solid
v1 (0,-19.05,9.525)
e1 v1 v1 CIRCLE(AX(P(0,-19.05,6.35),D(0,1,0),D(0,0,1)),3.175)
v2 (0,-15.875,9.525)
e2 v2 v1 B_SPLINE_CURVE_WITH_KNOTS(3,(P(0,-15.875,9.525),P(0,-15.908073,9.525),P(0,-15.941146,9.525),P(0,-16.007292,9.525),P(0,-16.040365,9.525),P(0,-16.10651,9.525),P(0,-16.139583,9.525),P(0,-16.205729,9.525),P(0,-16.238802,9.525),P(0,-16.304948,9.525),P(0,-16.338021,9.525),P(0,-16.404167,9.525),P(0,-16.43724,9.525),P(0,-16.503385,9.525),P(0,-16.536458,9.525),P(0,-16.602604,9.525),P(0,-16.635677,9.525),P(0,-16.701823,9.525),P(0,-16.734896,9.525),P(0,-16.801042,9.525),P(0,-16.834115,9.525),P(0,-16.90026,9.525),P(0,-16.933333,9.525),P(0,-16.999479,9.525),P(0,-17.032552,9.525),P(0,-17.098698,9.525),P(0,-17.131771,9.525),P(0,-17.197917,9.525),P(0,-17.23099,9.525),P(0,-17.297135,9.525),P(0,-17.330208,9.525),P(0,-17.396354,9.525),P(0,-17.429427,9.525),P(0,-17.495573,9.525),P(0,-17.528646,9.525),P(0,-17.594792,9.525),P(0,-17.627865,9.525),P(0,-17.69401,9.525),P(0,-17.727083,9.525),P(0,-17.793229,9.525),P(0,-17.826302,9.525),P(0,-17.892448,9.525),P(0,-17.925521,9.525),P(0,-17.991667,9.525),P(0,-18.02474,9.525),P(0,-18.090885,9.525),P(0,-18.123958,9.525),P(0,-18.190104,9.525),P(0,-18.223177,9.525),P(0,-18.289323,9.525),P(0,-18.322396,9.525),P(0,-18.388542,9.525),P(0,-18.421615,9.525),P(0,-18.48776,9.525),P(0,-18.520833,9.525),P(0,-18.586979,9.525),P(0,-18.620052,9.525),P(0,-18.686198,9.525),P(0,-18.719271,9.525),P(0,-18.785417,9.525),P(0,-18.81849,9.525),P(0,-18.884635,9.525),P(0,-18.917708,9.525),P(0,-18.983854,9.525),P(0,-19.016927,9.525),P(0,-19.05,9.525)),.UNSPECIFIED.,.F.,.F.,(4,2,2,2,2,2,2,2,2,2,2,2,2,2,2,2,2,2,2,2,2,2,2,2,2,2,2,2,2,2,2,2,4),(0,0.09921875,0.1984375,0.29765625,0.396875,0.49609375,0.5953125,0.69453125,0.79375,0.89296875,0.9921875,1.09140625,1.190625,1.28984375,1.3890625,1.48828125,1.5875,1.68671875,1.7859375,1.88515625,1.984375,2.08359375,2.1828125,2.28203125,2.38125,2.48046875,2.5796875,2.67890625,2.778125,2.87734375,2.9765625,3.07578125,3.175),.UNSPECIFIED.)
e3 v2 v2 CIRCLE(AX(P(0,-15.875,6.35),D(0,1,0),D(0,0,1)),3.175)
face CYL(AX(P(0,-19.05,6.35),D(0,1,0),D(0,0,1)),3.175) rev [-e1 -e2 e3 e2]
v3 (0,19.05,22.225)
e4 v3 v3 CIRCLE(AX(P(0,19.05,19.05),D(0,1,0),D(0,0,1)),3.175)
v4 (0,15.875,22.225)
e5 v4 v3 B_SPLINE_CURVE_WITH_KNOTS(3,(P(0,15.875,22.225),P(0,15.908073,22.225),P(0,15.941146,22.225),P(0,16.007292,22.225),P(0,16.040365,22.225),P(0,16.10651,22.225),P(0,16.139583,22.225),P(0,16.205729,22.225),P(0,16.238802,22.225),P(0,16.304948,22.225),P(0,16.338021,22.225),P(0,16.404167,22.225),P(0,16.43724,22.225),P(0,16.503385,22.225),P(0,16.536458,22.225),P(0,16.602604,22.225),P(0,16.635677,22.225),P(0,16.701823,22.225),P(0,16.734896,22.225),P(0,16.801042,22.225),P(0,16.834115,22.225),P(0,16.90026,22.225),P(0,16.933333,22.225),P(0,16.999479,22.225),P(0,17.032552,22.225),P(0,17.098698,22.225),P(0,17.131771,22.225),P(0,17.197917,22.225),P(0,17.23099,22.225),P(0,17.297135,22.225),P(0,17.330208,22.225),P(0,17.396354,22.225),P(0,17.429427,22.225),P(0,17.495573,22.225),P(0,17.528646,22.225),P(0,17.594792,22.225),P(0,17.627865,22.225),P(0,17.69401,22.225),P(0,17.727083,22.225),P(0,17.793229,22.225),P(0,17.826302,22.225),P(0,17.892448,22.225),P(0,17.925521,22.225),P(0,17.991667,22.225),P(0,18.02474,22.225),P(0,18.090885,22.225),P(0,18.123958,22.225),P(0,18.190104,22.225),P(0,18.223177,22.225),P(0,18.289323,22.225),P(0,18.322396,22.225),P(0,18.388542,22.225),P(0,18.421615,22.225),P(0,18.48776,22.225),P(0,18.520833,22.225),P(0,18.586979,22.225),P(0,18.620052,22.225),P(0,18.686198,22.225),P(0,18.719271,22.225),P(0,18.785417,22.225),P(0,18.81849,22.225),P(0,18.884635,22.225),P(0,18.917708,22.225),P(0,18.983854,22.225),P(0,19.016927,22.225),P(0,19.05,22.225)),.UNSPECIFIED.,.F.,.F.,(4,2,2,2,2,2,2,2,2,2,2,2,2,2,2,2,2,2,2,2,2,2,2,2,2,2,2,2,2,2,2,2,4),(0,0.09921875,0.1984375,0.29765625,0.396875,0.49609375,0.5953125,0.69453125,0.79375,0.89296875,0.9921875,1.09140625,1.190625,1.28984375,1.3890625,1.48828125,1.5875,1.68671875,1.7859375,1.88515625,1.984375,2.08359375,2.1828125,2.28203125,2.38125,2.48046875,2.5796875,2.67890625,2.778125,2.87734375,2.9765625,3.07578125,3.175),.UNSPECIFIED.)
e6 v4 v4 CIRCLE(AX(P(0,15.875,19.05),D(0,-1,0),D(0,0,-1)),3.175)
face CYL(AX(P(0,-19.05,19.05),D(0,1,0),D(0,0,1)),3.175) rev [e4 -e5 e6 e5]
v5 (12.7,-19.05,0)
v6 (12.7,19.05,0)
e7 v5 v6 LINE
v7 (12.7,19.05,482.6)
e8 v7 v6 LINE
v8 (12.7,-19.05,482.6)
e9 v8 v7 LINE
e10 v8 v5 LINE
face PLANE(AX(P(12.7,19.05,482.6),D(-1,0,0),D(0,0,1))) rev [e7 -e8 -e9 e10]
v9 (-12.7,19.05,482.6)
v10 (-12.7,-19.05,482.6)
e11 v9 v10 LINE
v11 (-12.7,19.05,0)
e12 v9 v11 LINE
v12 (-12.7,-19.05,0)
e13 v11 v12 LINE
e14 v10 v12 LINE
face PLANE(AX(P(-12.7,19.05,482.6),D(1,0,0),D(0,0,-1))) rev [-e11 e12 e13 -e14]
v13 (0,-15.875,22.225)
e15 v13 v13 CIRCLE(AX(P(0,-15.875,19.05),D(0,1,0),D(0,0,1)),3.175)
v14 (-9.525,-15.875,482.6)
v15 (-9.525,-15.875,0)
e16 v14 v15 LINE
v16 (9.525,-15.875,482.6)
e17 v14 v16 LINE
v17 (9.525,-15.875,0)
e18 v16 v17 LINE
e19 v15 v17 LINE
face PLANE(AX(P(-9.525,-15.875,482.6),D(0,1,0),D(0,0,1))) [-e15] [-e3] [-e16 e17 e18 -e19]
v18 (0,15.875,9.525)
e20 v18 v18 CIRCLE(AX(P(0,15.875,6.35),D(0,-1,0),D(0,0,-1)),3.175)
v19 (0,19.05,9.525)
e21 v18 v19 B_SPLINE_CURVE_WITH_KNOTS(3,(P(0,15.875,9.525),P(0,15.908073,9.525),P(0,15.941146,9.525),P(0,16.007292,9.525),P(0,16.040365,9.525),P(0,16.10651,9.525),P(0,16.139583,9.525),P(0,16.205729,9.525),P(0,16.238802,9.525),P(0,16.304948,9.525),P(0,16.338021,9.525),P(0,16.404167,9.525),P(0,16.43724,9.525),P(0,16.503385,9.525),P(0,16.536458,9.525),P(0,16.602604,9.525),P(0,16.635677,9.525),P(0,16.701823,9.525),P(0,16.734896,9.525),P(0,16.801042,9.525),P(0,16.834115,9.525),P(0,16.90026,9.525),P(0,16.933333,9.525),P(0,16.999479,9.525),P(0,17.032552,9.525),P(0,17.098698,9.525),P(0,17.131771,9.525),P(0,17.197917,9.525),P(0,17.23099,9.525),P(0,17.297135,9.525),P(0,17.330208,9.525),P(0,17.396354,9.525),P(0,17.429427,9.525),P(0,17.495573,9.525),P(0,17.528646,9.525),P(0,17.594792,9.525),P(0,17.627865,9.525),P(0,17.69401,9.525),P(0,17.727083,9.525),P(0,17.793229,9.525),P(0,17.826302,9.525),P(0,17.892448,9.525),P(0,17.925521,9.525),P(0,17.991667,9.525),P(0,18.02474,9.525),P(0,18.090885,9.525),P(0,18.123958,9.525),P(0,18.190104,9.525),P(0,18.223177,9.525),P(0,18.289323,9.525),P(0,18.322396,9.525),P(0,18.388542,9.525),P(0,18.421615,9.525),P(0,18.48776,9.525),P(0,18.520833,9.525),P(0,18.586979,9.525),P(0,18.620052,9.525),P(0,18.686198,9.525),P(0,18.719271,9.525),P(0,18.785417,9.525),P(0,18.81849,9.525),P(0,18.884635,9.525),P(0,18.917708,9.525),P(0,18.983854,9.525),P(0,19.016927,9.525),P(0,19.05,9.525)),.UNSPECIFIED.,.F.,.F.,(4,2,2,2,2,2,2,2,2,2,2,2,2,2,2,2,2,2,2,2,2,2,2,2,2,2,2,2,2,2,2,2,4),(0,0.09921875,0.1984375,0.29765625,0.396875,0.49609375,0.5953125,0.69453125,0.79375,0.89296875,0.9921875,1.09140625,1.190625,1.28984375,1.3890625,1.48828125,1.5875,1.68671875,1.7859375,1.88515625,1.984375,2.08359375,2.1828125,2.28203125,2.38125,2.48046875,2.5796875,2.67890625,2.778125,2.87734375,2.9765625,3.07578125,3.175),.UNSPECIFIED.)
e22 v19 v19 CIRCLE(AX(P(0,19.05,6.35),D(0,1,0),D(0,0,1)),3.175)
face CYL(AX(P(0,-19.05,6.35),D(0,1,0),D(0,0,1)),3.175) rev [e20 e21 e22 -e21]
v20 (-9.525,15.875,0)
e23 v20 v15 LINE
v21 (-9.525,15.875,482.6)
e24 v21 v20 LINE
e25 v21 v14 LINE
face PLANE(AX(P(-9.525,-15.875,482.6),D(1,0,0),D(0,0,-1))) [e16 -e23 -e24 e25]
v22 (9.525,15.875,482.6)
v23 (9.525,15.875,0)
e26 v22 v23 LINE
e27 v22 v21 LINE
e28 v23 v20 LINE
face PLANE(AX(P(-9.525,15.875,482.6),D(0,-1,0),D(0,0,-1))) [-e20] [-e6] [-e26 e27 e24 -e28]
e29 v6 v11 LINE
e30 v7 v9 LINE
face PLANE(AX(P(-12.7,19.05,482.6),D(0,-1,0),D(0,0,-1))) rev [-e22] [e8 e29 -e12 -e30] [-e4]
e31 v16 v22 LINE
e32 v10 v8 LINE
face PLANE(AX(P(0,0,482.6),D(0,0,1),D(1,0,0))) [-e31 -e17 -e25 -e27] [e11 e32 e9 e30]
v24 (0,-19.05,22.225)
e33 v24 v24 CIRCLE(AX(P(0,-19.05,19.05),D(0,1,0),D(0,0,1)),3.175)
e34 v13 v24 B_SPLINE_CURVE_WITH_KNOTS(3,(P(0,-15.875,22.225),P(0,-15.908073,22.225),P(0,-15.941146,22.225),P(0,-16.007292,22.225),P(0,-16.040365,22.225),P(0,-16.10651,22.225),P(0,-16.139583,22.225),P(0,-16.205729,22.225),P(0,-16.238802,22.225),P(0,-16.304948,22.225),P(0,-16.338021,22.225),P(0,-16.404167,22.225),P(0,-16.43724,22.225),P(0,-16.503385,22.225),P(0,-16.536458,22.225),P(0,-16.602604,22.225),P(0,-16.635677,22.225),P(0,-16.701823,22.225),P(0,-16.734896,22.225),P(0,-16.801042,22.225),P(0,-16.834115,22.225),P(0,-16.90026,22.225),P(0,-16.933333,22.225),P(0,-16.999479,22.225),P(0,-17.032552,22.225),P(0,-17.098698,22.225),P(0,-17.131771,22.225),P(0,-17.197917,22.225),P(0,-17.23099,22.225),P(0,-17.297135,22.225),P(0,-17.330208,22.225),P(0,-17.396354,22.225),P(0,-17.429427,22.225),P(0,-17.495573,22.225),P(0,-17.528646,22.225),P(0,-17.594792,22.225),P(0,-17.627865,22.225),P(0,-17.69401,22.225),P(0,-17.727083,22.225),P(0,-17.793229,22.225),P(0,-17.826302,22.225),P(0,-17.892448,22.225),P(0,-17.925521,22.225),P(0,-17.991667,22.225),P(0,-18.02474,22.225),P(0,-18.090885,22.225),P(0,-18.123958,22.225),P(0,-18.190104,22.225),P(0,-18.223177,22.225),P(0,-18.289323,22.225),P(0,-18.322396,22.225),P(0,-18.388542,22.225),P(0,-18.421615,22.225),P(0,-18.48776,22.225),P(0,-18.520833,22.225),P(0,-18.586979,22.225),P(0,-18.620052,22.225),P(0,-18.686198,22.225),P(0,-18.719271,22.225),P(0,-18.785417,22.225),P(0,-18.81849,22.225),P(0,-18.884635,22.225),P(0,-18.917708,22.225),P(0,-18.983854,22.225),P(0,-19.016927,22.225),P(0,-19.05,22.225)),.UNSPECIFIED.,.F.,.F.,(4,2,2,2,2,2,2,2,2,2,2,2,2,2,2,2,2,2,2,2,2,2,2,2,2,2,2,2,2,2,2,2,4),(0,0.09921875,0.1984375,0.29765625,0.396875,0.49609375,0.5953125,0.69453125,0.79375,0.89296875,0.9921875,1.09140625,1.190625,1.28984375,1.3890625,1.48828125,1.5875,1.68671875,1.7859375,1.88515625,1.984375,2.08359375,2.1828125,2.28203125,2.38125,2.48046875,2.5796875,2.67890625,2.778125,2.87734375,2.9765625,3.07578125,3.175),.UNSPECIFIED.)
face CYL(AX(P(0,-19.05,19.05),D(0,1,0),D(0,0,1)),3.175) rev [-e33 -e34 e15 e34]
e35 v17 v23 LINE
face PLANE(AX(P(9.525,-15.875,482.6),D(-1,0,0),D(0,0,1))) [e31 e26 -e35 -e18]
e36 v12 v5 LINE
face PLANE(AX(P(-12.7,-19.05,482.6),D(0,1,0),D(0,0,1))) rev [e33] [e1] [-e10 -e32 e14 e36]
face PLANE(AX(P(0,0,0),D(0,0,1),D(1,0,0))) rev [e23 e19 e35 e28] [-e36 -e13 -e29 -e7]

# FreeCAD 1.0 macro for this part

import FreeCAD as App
import Part
import Sketcher
Q = App.Units.Quantity

doc = App.newDocument("Part")
body = doc.addObject("PartDesign::Body", "Body")

sketch1 = body.newObject("Sketcher::SketchObject", "Sketch")
sketch1.AttachmentSupport = (doc.getObject("XY_Plane"), [""])
sketch1.MapMode = "FlatFace"
sketch1.addGeometry([
    Part.LineSegment(App.Vector(-13, 19, 0), App.Vector(-13, -19, 0)),
    Part.LineSegment(App.Vector(-13, -19, 0), App.Vector(13, -19, 0)),
    Part.LineSegment(App.Vector(13, -19, 0), App.Vector(13, 19, 0)),
    Part.LineSegment(App.Vector(13, 19, 0), App.Vector(-13, 19, 0)),
    Part.LineSegment(App.Vector(10, -16, 0), App.Vector(-10, -16, 0)),
    Part.LineSegment(App.Vector(-10, -16, 0), App.Vector(-10, 16, 0)),
    Part.LineSegment(App.Vector(-10, 16, 0), App.Vector(10, 16, 0)),
    Part.LineSegment(App.Vector(10, 16, 0), App.Vector(10, -16, 0)),
], False)
sketch1.addConstraint([
    Sketcher.Constraint("Coincident", 0, 2, 1, 1),
    Sketcher.Constraint("Coincident", 1, 2, 2, 1),
    Sketcher.Constraint("Coincident", 2, 2, 3, 1),
    Sketcher.Constraint("Coincident", 3, 2, 0, 1),
    Sketcher.Constraint("Coincident", 4, 2, 5, 1),
    Sketcher.Constraint("Coincident", 5, 2, 6, 1),
    Sketcher.Constraint("Coincident", 6, 2, 7, 1),
    Sketcher.Constraint("Coincident", 7, 2, 4, 1),
    Sketcher.Constraint("Vertical", 0),
    Sketcher.Constraint("Horizontal", 1),
    Sketcher.Constraint("Vertical", 2),
    Sketcher.Constraint("Horizontal", 3),
    Sketcher.Constraint("Horizontal", 4),
    Sketcher.Constraint("Vertical", 5),
    Sketcher.Constraint("Horizontal", 6),
    Sketcher.Constraint("Vertical", 7),
    Sketcher.Constraint("Symmetric", 0, 2, 2, 2, -1, 1),
    Sketcher.Constraint("Symmetric", 4, 2, 6, 2, -1, 1),
    Sketcher.Constraint("DistanceX", 1, 1, 1, 2, Q("1 in")),
    Sketcher.Constraint("DistanceY", 0, 2, 0, 1, Q("1.5 in")),
    Sketcher.Constraint("DistanceX", 4, 2, 4, 1, Q("0.75 in")),
    Sketcher.Constraint("DistanceY", 5, 1, 5, 2, Q("1.25 in")),
])
pad1 = body.newObject("PartDesign::Pad", "Pad")
pad1.Profile = sketch1
pad1.Length = Q("19 in")

sketch2 = body.newObject("Sketcher::SketchObject", "Sketch001")
sketch2.AttachmentSupport = (doc.getObject("XZ_Plane"), [""])
sketch2.MapMode = "FlatFace"
sketch2.AttachmentOffset = App.Placement(App.Vector(0, 0, -0.75 * 25.4), App.Rotation())
sketch2.addGeometry([
    Part.Circle(App.Vector(0, 19.1, 0), App.Vector(0, 0, 1), 3.2),
    Part.Circle(App.Vector(0, 6.3, 0), App.Vector(0, 0, 1), 3.2),
], False)
sketch2.addConstraint([
    Sketcher.Constraint("Equal", 0, 1),
    Sketcher.Constraint("PointOnObject", 0, 3, -2),
    Sketcher.Constraint("PointOnObject", 1, 3, -2),
    Sketcher.Constraint("Diameter", 0, Q("0.25 in")),
    Sketcher.Constraint("DistanceY", 1, 3, 0, 3, Q("0.5 in")),
    Sketcher.Constraint("DistanceY", -1, 1, 0, 3, Q("0.75 in")),
])
pocket1 = body.newObject("PartDesign::Pocket", "Pocket")
pocket1.Profile = sketch2
pocket1.Type = "ThroughAll"
pocket1.Reversed = True

doc.recompute()
